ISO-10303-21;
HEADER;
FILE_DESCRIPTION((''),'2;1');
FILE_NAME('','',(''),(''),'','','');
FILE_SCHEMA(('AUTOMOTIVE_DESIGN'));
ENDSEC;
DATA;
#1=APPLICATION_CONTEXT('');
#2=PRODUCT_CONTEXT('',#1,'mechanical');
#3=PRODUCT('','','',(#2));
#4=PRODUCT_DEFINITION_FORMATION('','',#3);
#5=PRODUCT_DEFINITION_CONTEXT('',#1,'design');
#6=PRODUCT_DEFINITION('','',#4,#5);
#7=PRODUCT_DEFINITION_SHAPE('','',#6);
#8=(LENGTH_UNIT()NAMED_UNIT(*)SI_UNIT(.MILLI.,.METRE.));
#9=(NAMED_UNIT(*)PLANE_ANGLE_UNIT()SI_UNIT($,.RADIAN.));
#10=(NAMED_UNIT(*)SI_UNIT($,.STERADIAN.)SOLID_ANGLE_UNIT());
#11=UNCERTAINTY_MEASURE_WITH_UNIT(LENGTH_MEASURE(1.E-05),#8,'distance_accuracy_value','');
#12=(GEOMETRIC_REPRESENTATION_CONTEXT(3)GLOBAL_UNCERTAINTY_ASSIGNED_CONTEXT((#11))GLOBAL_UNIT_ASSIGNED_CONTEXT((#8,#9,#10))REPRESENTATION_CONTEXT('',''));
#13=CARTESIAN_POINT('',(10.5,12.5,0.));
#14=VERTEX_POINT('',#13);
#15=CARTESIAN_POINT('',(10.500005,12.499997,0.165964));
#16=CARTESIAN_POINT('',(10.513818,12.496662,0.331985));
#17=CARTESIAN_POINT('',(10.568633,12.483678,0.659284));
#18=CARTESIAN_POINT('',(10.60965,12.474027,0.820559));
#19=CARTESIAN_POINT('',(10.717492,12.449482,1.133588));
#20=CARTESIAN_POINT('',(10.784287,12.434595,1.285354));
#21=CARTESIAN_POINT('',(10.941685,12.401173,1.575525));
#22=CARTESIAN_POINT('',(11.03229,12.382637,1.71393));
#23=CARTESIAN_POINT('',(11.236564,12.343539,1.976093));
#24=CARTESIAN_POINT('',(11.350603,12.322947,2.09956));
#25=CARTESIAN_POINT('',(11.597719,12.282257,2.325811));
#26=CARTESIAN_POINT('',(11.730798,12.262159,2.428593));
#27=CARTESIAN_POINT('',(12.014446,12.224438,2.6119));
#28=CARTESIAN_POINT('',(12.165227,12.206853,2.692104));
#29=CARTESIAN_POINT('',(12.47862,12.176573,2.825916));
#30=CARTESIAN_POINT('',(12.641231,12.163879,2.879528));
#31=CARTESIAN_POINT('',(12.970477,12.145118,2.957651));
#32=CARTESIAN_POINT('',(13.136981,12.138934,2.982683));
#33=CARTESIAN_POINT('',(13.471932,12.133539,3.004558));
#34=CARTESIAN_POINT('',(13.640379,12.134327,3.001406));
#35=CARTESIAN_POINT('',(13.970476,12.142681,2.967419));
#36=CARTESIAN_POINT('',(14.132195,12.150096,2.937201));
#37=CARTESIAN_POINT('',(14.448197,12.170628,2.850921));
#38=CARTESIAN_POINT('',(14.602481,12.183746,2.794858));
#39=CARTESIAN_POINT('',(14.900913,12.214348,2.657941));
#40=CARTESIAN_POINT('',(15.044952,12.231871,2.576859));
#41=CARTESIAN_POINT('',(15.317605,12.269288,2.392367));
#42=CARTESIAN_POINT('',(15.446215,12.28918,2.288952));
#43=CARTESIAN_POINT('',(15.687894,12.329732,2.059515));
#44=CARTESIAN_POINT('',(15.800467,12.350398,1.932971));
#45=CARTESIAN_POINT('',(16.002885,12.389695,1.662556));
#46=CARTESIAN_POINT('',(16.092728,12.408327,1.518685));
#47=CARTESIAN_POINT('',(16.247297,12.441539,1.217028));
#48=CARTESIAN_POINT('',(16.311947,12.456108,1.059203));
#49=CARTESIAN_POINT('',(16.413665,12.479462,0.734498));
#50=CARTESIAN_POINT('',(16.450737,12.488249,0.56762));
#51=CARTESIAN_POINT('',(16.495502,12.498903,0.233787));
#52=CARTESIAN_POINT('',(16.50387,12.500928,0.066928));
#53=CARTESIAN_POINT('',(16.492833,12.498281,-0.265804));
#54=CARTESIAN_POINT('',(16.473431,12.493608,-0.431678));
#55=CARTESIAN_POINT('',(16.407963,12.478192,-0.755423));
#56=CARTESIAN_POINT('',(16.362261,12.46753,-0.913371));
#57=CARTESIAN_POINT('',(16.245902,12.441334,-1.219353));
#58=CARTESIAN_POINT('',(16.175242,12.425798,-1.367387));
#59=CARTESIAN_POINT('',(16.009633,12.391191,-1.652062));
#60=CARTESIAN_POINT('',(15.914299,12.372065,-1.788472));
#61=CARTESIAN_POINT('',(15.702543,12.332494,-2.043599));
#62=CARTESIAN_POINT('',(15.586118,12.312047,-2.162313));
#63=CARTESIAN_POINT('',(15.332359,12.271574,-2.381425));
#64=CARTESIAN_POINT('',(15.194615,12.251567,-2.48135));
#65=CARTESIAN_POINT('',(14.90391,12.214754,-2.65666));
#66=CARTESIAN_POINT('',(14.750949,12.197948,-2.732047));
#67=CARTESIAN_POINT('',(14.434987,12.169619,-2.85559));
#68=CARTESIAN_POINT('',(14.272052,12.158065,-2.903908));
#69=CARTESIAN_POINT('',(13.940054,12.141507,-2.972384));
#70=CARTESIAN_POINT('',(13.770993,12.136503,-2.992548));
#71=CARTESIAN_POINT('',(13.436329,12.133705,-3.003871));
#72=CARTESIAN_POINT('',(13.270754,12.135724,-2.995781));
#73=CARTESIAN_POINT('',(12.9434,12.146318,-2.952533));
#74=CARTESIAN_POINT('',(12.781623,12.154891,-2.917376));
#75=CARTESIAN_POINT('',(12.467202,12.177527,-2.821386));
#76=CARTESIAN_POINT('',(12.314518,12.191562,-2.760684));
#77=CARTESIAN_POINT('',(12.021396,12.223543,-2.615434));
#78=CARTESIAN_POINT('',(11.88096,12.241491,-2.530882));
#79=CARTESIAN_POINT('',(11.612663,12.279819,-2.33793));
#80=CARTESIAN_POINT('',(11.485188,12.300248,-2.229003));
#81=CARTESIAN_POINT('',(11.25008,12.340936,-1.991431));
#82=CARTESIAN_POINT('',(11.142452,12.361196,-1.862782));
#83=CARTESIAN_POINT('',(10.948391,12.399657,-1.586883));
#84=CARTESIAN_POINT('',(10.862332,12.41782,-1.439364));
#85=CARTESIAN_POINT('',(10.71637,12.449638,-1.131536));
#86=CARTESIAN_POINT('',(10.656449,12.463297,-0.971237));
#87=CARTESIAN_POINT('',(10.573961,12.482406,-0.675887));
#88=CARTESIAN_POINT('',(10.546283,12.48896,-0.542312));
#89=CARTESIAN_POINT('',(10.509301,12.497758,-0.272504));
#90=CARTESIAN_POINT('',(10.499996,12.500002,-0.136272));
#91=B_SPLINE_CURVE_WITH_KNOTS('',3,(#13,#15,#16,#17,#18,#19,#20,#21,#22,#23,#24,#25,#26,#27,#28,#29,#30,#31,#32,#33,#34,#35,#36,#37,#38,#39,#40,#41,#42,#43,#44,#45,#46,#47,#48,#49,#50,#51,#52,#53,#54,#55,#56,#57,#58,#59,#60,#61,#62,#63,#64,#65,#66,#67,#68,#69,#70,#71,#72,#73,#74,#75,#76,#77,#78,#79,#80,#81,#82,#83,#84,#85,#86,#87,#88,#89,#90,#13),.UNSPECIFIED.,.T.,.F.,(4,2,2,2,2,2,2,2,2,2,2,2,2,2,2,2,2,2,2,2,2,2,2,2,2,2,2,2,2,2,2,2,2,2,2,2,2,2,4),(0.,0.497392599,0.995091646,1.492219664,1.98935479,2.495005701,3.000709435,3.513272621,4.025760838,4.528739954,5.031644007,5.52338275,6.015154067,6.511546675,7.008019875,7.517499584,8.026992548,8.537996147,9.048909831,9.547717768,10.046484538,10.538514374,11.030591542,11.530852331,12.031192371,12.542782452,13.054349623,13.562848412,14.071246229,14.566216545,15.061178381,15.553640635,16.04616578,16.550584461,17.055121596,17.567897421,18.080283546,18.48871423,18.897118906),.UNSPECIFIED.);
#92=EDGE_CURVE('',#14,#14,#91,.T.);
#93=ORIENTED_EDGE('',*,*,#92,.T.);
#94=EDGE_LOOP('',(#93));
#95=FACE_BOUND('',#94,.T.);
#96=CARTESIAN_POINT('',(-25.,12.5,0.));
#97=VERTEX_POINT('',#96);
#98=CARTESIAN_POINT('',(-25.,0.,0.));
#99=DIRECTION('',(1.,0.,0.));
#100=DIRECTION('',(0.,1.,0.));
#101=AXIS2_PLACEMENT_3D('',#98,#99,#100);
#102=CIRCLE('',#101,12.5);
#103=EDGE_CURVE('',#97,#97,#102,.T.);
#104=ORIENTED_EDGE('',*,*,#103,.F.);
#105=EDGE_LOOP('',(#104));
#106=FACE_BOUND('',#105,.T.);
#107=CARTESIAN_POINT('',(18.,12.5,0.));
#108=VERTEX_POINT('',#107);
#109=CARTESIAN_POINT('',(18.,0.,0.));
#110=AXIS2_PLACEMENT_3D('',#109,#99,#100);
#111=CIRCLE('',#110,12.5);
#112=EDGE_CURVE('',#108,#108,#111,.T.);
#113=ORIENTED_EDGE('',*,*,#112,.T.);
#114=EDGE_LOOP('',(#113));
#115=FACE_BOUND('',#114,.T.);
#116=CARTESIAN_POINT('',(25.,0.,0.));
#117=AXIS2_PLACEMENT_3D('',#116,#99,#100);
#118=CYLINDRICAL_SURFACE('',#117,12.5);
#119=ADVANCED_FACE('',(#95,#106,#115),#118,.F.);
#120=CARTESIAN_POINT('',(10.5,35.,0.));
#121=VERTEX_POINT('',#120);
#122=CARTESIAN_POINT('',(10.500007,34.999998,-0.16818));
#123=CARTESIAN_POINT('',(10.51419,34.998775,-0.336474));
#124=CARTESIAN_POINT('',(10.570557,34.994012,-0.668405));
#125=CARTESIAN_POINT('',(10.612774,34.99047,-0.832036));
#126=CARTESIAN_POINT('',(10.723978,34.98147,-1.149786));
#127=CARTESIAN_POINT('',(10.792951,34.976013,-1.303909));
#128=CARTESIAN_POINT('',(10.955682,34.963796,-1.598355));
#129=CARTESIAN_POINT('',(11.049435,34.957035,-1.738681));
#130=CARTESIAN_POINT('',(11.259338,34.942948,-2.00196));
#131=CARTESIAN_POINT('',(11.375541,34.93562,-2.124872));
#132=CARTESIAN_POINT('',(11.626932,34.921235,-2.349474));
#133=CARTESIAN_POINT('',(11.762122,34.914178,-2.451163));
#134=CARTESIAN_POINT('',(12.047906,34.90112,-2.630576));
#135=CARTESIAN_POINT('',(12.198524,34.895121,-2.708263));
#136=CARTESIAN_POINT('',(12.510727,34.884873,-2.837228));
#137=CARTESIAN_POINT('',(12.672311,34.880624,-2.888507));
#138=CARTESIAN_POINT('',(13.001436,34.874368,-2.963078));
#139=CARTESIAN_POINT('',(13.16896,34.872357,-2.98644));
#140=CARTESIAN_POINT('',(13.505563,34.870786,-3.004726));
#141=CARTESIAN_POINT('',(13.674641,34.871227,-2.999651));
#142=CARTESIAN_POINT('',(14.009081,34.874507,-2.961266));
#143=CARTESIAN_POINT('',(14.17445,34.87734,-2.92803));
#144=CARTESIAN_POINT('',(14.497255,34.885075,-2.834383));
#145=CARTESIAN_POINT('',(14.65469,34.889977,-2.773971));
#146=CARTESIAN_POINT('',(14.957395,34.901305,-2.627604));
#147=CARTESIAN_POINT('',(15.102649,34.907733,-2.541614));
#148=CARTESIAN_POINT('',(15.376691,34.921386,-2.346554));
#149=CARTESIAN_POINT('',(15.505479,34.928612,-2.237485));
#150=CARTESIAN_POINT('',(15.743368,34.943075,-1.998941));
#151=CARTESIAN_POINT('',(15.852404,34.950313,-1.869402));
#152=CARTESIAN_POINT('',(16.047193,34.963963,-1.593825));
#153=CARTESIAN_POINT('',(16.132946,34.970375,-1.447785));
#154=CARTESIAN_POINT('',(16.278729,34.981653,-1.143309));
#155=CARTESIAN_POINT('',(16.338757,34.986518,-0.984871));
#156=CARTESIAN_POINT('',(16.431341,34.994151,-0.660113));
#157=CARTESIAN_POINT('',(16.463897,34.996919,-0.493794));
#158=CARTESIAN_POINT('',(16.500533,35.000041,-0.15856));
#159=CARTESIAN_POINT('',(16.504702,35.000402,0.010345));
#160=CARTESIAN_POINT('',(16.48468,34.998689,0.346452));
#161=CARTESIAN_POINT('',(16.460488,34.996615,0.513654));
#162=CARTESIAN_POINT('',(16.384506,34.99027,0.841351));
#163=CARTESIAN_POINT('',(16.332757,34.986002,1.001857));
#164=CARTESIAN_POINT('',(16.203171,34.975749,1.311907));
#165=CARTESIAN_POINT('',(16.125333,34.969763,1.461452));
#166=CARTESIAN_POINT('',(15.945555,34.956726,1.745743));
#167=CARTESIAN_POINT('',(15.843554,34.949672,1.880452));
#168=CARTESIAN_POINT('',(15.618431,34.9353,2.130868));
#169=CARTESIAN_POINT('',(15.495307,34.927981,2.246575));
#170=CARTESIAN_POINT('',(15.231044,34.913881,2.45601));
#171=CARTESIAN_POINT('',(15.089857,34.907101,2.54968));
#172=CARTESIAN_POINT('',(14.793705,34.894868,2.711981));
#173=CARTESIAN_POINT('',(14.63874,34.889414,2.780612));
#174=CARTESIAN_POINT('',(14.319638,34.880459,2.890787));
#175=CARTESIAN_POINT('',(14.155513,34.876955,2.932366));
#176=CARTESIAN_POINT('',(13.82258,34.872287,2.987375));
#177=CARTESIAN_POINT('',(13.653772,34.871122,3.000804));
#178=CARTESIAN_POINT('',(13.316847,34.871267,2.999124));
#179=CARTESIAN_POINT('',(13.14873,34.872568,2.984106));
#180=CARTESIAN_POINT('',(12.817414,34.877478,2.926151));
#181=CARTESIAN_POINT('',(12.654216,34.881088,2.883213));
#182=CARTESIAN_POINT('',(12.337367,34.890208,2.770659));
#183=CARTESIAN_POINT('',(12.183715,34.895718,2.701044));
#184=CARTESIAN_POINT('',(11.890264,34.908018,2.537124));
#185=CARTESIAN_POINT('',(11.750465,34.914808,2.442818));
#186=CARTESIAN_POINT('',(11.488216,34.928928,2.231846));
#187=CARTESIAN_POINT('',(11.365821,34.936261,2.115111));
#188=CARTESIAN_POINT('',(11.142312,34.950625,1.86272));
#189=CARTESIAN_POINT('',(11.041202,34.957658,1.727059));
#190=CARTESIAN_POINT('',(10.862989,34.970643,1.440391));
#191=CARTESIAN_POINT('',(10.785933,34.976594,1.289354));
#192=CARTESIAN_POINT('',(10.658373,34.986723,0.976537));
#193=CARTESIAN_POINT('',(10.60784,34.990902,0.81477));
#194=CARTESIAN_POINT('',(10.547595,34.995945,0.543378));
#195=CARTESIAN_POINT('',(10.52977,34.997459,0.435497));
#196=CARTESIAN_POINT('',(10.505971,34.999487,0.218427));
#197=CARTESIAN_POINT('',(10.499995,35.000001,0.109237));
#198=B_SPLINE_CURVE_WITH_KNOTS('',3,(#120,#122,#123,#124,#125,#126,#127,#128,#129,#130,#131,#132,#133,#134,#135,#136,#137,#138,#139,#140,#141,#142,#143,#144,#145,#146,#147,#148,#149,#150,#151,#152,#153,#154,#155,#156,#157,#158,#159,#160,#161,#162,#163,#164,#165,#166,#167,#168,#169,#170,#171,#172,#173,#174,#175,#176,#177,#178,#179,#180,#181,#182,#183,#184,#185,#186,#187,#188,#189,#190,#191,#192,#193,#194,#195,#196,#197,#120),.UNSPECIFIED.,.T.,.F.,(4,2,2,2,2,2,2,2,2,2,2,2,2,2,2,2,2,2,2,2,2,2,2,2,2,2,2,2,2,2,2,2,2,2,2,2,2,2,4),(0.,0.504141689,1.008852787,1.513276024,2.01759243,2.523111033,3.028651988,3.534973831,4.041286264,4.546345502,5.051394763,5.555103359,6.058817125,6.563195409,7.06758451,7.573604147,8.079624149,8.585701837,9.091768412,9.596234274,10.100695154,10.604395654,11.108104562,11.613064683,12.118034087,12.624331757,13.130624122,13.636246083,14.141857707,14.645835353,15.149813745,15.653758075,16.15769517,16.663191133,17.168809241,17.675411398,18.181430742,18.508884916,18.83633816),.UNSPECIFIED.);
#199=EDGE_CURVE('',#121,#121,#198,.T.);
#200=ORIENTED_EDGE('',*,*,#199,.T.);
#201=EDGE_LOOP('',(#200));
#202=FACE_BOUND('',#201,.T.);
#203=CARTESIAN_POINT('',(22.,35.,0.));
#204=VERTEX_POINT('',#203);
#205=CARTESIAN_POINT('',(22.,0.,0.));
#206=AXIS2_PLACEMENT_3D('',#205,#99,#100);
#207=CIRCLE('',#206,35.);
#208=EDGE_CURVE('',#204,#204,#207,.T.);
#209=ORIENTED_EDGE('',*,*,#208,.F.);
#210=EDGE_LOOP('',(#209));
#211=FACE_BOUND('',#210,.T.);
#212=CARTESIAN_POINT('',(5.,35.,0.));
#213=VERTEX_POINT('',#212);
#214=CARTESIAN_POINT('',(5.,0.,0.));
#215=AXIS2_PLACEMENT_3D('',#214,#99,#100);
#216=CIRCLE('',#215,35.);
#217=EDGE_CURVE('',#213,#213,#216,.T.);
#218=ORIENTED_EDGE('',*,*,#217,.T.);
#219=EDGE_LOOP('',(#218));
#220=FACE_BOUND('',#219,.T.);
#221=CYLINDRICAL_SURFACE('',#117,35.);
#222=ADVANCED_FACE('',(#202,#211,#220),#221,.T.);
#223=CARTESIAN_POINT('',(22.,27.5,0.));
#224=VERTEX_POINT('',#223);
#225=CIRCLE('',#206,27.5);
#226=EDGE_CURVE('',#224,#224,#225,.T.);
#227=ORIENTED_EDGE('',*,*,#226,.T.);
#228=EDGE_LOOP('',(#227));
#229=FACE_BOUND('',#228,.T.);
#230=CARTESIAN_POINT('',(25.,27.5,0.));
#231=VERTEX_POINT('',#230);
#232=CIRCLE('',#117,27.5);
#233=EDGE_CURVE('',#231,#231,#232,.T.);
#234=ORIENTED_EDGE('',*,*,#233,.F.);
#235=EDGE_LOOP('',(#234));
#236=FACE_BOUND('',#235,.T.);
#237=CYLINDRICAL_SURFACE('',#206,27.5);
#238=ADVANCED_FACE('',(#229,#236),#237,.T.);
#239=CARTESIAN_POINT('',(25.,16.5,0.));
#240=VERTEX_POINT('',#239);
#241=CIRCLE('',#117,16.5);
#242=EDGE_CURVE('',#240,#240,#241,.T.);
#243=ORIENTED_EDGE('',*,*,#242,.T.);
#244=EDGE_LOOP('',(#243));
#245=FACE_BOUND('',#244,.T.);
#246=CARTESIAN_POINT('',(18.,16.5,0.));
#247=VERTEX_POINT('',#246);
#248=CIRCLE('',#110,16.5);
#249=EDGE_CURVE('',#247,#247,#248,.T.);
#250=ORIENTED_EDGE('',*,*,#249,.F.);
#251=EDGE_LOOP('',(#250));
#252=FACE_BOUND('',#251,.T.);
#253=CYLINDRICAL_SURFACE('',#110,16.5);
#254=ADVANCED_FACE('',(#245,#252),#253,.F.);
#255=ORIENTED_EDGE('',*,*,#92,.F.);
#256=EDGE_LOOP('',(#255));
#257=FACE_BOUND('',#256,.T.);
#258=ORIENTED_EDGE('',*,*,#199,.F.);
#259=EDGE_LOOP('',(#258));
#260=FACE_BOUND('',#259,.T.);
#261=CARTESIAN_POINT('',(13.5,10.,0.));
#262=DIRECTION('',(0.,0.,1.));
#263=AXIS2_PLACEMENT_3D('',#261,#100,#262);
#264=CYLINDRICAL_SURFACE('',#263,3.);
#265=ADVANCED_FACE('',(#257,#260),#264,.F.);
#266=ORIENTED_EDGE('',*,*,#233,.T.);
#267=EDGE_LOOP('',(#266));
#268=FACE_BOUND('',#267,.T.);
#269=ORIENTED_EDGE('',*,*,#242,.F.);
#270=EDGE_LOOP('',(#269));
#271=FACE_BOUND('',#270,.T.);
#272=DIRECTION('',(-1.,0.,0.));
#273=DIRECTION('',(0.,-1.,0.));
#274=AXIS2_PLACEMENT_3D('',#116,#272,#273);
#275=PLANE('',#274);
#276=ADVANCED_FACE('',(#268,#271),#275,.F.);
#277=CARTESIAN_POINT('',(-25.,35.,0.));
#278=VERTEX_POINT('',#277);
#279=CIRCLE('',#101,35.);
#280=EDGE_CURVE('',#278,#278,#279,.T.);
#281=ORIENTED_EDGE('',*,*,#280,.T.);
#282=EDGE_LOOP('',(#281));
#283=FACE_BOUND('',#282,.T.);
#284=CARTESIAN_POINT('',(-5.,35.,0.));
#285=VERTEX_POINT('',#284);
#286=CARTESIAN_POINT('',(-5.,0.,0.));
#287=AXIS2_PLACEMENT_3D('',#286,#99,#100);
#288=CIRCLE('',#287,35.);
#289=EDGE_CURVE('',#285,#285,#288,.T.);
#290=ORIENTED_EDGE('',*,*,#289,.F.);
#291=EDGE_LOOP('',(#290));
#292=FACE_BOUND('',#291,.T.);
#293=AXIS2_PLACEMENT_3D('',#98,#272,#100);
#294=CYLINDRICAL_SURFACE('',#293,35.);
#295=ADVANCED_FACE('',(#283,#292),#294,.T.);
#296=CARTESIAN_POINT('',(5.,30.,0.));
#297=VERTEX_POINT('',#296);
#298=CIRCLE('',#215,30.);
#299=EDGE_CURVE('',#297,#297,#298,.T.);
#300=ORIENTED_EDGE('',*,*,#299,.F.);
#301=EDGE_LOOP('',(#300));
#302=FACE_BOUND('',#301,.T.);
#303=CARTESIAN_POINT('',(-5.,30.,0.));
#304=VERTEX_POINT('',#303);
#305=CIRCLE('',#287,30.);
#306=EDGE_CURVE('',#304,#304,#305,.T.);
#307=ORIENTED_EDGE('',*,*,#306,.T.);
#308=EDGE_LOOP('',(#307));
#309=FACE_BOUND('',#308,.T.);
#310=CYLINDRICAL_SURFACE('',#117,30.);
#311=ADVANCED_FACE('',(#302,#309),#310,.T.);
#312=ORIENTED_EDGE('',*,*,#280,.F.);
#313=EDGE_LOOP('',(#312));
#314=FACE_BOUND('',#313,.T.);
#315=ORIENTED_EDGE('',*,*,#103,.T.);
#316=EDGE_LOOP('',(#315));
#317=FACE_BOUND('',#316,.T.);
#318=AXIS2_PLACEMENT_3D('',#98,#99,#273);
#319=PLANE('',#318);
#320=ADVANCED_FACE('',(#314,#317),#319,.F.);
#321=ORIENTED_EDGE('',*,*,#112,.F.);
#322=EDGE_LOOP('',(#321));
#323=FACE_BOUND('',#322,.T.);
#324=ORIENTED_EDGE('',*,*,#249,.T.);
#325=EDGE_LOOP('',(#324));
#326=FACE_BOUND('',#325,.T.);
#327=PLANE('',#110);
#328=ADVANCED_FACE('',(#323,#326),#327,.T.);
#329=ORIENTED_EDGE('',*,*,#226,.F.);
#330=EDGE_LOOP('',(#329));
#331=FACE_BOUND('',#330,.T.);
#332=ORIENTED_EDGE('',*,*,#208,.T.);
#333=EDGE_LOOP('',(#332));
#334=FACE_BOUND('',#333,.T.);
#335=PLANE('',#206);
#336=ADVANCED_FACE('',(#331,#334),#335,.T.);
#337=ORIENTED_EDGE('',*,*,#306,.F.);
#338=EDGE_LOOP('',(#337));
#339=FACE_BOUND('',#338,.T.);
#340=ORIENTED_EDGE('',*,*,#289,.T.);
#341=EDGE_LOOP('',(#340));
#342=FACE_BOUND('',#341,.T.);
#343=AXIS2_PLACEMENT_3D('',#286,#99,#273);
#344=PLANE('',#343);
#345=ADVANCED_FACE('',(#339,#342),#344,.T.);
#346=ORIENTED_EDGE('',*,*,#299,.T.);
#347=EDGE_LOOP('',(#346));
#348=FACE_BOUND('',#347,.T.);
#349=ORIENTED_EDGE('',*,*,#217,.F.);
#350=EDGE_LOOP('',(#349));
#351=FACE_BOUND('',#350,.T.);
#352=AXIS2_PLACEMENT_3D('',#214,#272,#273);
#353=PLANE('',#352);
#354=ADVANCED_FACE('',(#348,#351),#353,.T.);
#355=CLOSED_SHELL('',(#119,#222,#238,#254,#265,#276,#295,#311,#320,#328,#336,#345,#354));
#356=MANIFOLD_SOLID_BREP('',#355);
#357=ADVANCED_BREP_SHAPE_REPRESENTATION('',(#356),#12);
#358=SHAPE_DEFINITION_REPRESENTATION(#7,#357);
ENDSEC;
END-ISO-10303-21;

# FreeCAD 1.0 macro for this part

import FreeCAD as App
import Part
import Sketcher
Q = App.Units.Quantity


def add_polygon(sketch, points):
    """Adds a closed chain of lines whose ends are joined by coincident constraints."""
    first, n = sketch.GeometryCount, len(points)
    for a, b in zip(points, points[1:] + points[:1]):
        sketch.addGeometry(Part.LineSegment(App.Vector(*a, 0), App.Vector(*b, 0)), False)
    for i in range(n):
        sketch.addConstraint(Sketcher.Constraint("Coincident", first + i, 2, first + (i + 1) % n, 1))

doc = App.newDocument("Part")
body = doc.addObject("PartDesign::Body", "Body")

sketch1 = body.newObject("Sketcher::SketchObject", "Sketch")
sketch1.AttachmentSupport = (doc.getObject("XY_Plane"), [""])
sketch1.MapMode = "FlatFace"
add_polygon(sketch1, [(0, 30), (0, 12), (25, 12), (25, 35), (5, 35), (5, 30)])
sketch1.addConstraint([
    Sketcher.Constraint("Vertical", 0),
    Sketcher.Constraint("Horizontal", 1),
    Sketcher.Constraint("Vertical", 2),
    Sketcher.Constraint("Horizontal", 3),
    Sketcher.Constraint("Vertical", 4),
    Sketcher.Constraint("Horizontal", 5),
    Sketcher.Constraint("PointOnObject", 0, 2, -2),
    Sketcher.Constraint("Equal", 5, 4),
    Sketcher.Constraint("DistanceX", 1, 1, 1, 2, Q("25 mm")),
    Sketcher.Constraint("DistanceX", 3, 2, 3, 1, Q("20 mm")),
    Sketcher.Constraint("DistanceY", 0, 2, 0, 1, Q("17.5 mm")),
    Sketcher.Constraint("DistanceY", -1, 1, 2, 2, Q("35 mm")),
])
revolution = body.newObject("PartDesign::Revolution", "Revolution")
revolution.Profile = sketch1
revolution.ReferenceAxis = (sketch1, ["H_Axis"])
revolution.Angle = 360
body2 = doc.addObject("PartDesign::Body", "Body001")
doc.recompute()

body2.BaseFeature = body
doc.recompute()

mirroring = doc.addObject("Part::Mirroring", "Mirroring")
mirroring.Source = body
mirroring.Base = App.Vector(0, 0, 0)
mirroring.Normal = App.Vector(1, 0, 0)
body3 = doc.addObject("PartDesign::Body", "Body002")
body3.BaseFeature = mirroring
boolean = body2.newObject("PartDesign::Boolean", "Boolean")
boolean.Type = "Fuse"
boolean.addObjects([body3])
doc.recompute()

sketch2 = body2.newObject("Sketcher::SketchObject", "Sketch001")
sketch2.AttachmentSupport = (doc.getObject("YZ_Plane001"), [""])
sketch2.MapMode = "FlatFace"
sketch2.AttachmentOffset = App.Placement(App.Vector(0, 0, 25), App.Rotation())
sketch2.addGeometry([
    Part.Circle(App.Vector(0, 0, 0), App.Vector(0, 0, 1), 16),
    Part.Circle(App.Vector(0, 0, 0), App.Vector(0, 0, 1), 12),
], False)
sketch2.addConstraint([
    Sketcher.Constraint("Coincident", 0, 3, -1, 1),
    Sketcher.Constraint("Coincident", 1, 3, -1, 1),
    Sketcher.Constraint("Diameter", 0, Q("33 mm")),
    Sketcher.Constraint("Diameter", 1, Q("25 mm")),
])
pocket1 = body2.newObject("PartDesign::Pocket", "Pocket")
pocket1.Profile = sketch2
pocket1.Length = 7

sketch3 = body2.newObject("Sketcher::SketchObject", "Sketch002")
sketch3.AttachmentSupport = (doc.getObject("YZ_Plane001"), [""])
sketch3.MapMode = "FlatFace"
sketch3.AttachmentOffset = App.Placement(App.Vector(0, 0, 25), App.Rotation())
sketch3.addGeometry([
    Part.Circle(App.Vector(0, 0, 0), App.Vector(0, 0, 1), 35),
    Part.Circle(App.Vector(0, 0, 0), App.Vector(0, 0, 1), 28),
], False)
sketch3.addConstraint([
    Sketcher.Constraint("Coincident", 0, 3, -1, 1),
    Sketcher.Constraint("Coincident", 1, 3, -1, 1),
    Sketcher.Constraint("Diameter", 0, Q("70 mm")),
    Sketcher.Constraint("Diameter", 1, Q("55 mm")),
])
pocket2 = body2.newObject("PartDesign::Pocket", "Pocket001")
pocket2.Profile = sketch3
pocket2.Length = 3

sketch4 = body2.newObject("Sketcher::SketchObject", "Sketch003")
sketch4.AttachmentSupport = (doc.getObject("XZ_Plane001"), [""])
sketch4.MapMode = "FlatFace"
sketch4.AttachmentOffset = App.Placement(App.Vector(0, 0, -35), App.Rotation())
sketch4.addGeometry(Part.Circle(App.Vector(13.5, 0, 0), App.Vector(0, 0, 1), 3), False)
sketch4.addConstraint([
    Sketcher.Constraint("PointOnObject", 0, 3, -1),
    Sketcher.Constraint("Diameter", 0, Q("6 mm")),
    Sketcher.Constraint("DistanceX", -1, 1, 0, 3, Q("13.5 mm")),
])
pocket3 = body2.newObject("PartDesign::Pocket", "Pocket002")
pocket3.Profile = sketch4
pocket3.Length = 25
pocket3.Reversed = True
mirroring.Visibility = False

doc.recompute()
